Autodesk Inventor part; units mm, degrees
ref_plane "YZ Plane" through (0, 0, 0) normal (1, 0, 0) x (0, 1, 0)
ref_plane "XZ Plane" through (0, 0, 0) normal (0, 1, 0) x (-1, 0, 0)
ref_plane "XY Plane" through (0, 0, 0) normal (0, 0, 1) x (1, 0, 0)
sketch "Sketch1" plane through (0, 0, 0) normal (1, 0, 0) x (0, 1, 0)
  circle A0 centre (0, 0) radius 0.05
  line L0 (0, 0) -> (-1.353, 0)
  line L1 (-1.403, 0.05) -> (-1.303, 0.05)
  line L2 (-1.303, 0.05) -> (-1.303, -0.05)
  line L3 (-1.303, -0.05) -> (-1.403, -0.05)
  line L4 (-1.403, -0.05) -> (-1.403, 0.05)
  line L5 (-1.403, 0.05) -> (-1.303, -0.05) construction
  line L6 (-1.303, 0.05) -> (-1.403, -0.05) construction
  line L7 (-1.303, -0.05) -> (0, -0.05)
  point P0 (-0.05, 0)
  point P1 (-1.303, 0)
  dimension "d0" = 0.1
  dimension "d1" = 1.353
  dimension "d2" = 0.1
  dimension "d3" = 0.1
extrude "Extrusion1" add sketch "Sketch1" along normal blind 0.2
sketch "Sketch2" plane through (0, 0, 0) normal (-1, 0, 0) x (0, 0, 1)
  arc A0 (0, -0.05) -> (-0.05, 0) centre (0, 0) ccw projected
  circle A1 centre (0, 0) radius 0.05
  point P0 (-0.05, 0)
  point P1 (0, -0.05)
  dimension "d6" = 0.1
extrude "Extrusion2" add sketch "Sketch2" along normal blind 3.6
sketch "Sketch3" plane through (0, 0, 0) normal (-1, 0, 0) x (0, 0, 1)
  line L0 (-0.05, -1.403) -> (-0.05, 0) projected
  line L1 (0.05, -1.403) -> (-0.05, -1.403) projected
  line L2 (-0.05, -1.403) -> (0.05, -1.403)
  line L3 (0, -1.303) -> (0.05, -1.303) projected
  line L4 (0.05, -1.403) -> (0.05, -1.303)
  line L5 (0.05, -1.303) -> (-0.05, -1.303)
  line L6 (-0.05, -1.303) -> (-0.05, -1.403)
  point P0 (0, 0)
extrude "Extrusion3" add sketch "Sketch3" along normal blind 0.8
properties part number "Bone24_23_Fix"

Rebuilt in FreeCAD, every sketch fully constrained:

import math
import FreeCAD as App
import Part
import Sketcher


def add_polygon(sketch, points):
    """Adds a closed chain of lines whose ends are joined by coincident constraints."""
    first, n = sketch.GeometryCount, len(points)
    for a, b in zip(points, points[1:] + points[:1]):
        sketch.addGeometry(Part.LineSegment(App.Vector(*a, 0), App.Vector(*b, 0)), False)
    for i in range(n):
        sketch.addConstraint(Sketcher.Constraint("Coincident", first + i, 2, first + (i + 1) % n, 1))

doc = App.newDocument("Part")
body = doc.addObject("PartDesign::Body", "Body")

# Sketch on YZ plane
sketch1 = body.newObject("Sketcher::SketchObject", "Sketch")
sketch1.AttachmentSupport = (doc.getObject("YZ_Plane"), [""])
sketch1.MapMode = "FlatFace"
sketch1.addGeometry(Part.LineSegment(App.Vector(-0.05, 0, 0), App.Vector(-1.303, 0, 0)), False)
sketch1.addGeometry(Part.LineSegment(App.Vector(-1.303, 0, 0), App.Vector(-1.303, 0.05, 0)), False)
sketch1.addGeometry(Part.LineSegment(App.Vector(-1.303, 0.05, 0), App.Vector(-1.403, 0.05, 0)), False)
sketch1.addGeometry(Part.LineSegment(App.Vector(-1.403, 0.05, 0), App.Vector(-1.403, -0.05, 0)), False)
sketch1.addGeometry(Part.LineSegment(App.Vector(-1.403, -0.05, 0), App.Vector(0, -0.05, 0)), False)
sketch1.addGeometry(Part.ArcOfCircle(Part.Circle(App.Vector(0, 0, 0), App.Vector(0, 0, 1), 0.05), math.radians(-90), math.radians(180)), False)
sketch1.addConstraint(Sketcher.Constraint("Coincident", 0, 2, 1, 1))
sketch1.addConstraint(Sketcher.Constraint("Coincident", 1, 2, 2, 1))
sketch1.addConstraint(Sketcher.Constraint("Coincident", 2, 2, 3, 1))
sketch1.addConstraint(Sketcher.Constraint("Coincident", 3, 2, 4, 1))
sketch1.addConstraint(Sketcher.Constraint("Tangent", 4, 2, 5, 1))
sketch1.addConstraint(Sketcher.Constraint("Coincident", 5, 2, 0, 1))
sketch1.addConstraint(Sketcher.Constraint("Horizontal", 0))
sketch1.addConstraint(Sketcher.Constraint("Vertical", 1))
sketch1.addConstraint(Sketcher.Constraint("Horizontal", 2))
sketch1.addConstraint(Sketcher.Constraint("Vertical", 3))
sketch1.addConstraint(Sketcher.Constraint("Horizontal", 4))
sketch1.addConstraint(Sketcher.Constraint("Coincident", 5, 3, -1, 1))
sketch1.addConstraint(Sketcher.Constraint("PointOnObject", 0, 2, -1))
sketch1.addConstraint(Sketcher.Constraint("Equal", 2, 3))
sketch1.addConstraint(Sketcher.Constraint("Radius", 5, 0.05))
sketch1.addConstraint(Sketcher.Constraint("DistanceX", 2, 2, 2, 1, 0.1))
sketch1.addConstraint(Sketcher.Constraint("DistanceX", 2, 2, 5, 2, 1.353))
pad1 = body.newObject("PartDesign::Pad", "Pad")
pad1.Profile = sketch1
pad1.Length = 0.2

# Sketch on YZ plane
sketch2 = body.newObject("Sketcher::SketchObject", "Sketch001")
sketch2.AttachmentSupport = (doc.getObject("YZ_Plane"), [""])
sketch2.MapMode = "FlatFace"
sketch2.addGeometry(Part.Circle(App.Vector(0, 0, 0), App.Vector(0, 0, 1), 0.05), False)
sketch2.addConstraint(Sketcher.Constraint("Coincident", 0, 3, -1, 1))
sketch2.addConstraint(Sketcher.Constraint("Diameter", 0, 0.1))
pad2 = body.newObject("PartDesign::Pad", "Pad001")
pad2.Profile = sketch2
pad2.Length = 3.6
pad2.Reversed = True

# Sketch on YZ plane
sketch3 = body.newObject("Sketcher::SketchObject", "Sketch002")
sketch3.AttachmentSupport = (doc.getObject("YZ_Plane"), [""])
sketch3.MapMode = "FlatFace"
add_polygon(sketch3, [(-1.303, -0.05), (-1.403, -0.05), (-1.403, 0.05), (-1.303, 0.05)])  # lines 0-3
sketch3.addConstraint(Sketcher.Constraint("Horizontal", 0))
sketch3.addConstraint(Sketcher.Constraint("Vertical", 1))
sketch3.addConstraint(Sketcher.Constraint("Horizontal", 2))
sketch3.addConstraint(Sketcher.Constraint("Vertical", 3))
sketch3.addConstraint(Sketcher.Constraint("Equal", 2, 1))
sketch3.addConstraint(Sketcher.Constraint("DistanceX", 0, 2, 0, 1, 0.1))
sketch3.addConstraint(Sketcher.Constraint("DistanceY", 0, 2, -1, 1, 0.05))
sketch3.addConstraint(Sketcher.Constraint("DistanceX", 0, 2, -1, 1, 1.403))
pad3 = body.newObject("PartDesign::Pad", "Pad002")
pad3.Profile = sketch3
pad3.Length = 0.8
pad3.Reversed = True

doc.recompute()
